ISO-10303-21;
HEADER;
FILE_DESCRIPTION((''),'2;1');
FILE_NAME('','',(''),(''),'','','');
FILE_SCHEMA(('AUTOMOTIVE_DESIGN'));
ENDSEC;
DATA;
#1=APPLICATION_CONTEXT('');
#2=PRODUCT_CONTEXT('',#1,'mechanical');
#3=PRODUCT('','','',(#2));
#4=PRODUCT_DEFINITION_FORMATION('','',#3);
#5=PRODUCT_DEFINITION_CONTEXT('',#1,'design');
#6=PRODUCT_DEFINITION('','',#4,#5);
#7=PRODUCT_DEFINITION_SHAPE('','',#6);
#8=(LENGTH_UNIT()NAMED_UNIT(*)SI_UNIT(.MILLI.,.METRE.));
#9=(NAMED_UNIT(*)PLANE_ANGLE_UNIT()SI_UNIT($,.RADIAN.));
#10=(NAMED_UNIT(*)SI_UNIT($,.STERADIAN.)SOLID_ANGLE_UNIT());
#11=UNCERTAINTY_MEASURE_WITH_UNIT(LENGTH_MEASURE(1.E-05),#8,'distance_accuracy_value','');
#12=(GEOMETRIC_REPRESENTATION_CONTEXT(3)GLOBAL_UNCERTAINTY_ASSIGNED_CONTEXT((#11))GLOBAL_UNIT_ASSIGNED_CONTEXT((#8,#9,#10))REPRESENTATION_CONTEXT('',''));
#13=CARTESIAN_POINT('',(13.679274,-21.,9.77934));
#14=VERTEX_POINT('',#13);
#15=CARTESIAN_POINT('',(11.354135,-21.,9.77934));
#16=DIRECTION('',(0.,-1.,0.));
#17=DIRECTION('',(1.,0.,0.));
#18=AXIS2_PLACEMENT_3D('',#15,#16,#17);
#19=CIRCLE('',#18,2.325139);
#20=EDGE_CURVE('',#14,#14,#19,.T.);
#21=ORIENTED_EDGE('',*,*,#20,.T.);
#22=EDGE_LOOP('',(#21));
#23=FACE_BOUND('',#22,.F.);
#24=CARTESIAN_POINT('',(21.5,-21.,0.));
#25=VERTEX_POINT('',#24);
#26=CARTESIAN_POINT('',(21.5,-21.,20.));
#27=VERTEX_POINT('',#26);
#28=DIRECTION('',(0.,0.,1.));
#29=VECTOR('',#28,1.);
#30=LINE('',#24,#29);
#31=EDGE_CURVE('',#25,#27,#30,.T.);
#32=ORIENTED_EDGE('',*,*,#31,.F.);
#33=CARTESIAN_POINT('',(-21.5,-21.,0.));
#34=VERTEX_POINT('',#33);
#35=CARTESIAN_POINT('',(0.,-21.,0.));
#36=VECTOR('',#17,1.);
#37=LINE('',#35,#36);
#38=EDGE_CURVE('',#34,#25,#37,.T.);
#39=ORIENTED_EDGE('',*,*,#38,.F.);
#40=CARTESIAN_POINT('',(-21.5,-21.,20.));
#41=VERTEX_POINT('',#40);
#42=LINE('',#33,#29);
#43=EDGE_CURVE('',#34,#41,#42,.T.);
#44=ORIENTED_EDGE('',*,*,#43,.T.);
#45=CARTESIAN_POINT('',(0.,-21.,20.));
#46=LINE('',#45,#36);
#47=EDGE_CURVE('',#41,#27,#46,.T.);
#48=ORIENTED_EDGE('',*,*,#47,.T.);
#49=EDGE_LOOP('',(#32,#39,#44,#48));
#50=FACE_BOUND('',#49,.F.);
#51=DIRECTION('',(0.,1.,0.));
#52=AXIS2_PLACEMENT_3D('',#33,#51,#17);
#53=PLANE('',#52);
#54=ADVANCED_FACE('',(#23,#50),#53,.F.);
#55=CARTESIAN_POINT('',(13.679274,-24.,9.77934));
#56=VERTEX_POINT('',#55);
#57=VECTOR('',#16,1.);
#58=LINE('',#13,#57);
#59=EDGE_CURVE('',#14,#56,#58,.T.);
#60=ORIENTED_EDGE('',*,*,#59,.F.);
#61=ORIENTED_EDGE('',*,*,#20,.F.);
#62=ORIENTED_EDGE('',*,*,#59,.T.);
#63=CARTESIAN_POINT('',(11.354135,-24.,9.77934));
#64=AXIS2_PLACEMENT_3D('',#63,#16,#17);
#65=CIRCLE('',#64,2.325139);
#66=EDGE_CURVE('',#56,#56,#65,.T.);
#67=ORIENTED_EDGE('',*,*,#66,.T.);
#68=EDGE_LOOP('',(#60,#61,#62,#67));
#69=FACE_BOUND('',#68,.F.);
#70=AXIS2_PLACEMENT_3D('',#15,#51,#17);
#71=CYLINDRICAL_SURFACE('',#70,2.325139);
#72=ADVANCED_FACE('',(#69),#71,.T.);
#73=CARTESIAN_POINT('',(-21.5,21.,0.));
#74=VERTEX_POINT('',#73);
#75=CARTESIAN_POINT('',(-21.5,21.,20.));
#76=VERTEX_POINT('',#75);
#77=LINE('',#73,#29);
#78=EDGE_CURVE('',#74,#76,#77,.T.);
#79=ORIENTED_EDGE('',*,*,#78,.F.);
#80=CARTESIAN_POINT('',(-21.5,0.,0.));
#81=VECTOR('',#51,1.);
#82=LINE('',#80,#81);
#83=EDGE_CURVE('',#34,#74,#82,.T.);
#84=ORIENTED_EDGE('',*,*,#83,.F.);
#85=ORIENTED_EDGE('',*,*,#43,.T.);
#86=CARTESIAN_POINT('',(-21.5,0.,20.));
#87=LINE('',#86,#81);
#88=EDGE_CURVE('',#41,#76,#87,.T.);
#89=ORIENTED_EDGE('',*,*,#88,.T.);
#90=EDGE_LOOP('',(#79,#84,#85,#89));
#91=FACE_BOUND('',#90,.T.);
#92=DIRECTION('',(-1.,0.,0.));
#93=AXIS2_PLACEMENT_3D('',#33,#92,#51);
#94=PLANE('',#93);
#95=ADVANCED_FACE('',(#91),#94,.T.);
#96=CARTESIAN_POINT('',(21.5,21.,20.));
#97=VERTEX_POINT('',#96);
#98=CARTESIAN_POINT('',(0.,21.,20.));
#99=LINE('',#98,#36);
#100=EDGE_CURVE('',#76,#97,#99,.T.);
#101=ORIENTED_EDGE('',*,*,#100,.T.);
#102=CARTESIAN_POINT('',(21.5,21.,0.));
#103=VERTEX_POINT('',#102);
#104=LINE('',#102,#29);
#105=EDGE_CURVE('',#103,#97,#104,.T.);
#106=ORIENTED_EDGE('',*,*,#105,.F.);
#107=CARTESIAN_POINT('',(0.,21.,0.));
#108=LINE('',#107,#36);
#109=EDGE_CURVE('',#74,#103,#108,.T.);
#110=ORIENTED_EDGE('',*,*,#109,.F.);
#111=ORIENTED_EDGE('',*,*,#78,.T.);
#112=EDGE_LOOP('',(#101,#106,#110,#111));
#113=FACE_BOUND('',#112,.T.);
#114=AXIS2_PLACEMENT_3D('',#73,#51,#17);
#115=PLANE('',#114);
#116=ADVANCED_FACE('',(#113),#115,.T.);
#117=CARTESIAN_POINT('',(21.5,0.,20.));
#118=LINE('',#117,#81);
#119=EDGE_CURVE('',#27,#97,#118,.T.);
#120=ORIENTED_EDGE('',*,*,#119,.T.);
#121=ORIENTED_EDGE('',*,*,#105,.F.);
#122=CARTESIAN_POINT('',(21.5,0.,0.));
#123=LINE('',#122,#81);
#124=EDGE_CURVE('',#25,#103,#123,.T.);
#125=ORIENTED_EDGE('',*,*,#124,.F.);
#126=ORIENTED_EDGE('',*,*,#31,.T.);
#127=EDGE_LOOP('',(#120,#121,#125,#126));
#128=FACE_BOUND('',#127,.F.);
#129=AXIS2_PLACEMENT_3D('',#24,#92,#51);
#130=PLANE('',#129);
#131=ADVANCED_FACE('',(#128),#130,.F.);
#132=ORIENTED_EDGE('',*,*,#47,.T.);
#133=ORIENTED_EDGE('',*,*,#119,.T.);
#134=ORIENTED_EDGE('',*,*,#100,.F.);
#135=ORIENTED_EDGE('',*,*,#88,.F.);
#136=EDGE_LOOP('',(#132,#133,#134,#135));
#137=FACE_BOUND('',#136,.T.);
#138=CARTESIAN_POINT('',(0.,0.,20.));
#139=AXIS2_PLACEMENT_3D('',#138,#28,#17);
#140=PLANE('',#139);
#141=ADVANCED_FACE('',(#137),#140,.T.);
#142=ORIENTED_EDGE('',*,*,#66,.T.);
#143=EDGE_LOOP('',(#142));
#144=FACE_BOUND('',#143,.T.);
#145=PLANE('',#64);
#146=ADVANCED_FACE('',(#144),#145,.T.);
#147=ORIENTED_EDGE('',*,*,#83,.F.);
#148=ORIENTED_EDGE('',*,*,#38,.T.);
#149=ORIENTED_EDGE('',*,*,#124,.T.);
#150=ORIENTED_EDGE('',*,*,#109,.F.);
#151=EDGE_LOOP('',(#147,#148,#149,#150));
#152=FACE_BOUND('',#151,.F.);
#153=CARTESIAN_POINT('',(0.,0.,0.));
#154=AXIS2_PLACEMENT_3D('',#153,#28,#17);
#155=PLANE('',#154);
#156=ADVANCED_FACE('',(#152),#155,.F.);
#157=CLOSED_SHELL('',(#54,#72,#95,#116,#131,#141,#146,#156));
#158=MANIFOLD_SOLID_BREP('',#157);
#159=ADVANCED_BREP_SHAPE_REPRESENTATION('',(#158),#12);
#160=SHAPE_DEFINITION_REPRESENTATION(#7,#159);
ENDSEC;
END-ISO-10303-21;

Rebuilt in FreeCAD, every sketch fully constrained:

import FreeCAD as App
import Part
import Sketcher
Q = App.Units.Quantity

doc = App.newDocument("Part")
body = doc.addObject("PartDesign::Body", "Body")

# Sketch on XY plane
sketch1 = doc.addObject("Sketcher::SketchObject", "Sketch")
body.addObject(sketch1)
sketch1.AttachmentSupport = (doc.XY_Plane, [""])
sketch1.MapMode = "FlatFace"
sketch1.addGeometry([
    Part.LineSegment(App.Vector(-21.5, 21, 0), App.Vector(-21.5, -21, 0)),
    Part.LineSegment(App.Vector(-21.5, -21, 0), App.Vector(21.5, -21, 0)),
    Part.LineSegment(App.Vector(21.5, -21, 0), App.Vector(21.5, 21, 0)),
    Part.LineSegment(App.Vector(21.5, 21, 0), App.Vector(-21.5, 21, 0)),
], False)
sketch1.addConstraint([
    Sketcher.Constraint("Coincident", 0, 2, 1, 1),
    Sketcher.Constraint("Coincident", 1, 2, 2, 1),
    Sketcher.Constraint("Coincident", 2, 2, 3, 1),
    Sketcher.Constraint("Coincident", 3, 2, 0, 1),
    Sketcher.Constraint("Vertical", 0),
    Sketcher.Constraint("Horizontal", 1),
    Sketcher.Constraint("Vertical", 2),
    Sketcher.Constraint("Horizontal", 3),
    Sketcher.Constraint("Symmetric", 0, 2, 2, 2, -1, 1),
    Sketcher.Constraint("DistanceX", 1, 1, 1, 2, Q("43 mm")),
    Sketcher.Constraint("DistanceY", 0, 2, 0, 1, Q("42 mm")),
])
pad1 = doc.addObject("PartDesign::Pad", "Pad")
body.addObject(pad1)
pad1.Profile = sketch1
pad1.Length = 20

# Sketch on XZ plane
sketch2 = doc.addObject("Sketcher::SketchObject", "Sketch001")
body.addObject(sketch2)
sketch2.AttachmentSupport = (doc.XZ_Plane, [""])
sketch2.MapMode = "FlatFace"
sketch2.AttachmentOffset = App.Placement(App.Vector(0, 0, 21), App.Rotation())
sketch2.addGeometry(Part.Circle(App.Vector(11.354135, 9.77934, 0), App.Vector(0, 0, 1), 2.325139), False)
sketch2.addConstraint([
    Sketcher.Constraint("Diameter", 0, Q("4.650278 mm")),
    Sketcher.Constraint("DistanceY", -1, 1, 0, 3, Q("9.77934 mm")),
    Sketcher.Constraint("DistanceX", -1, 1, 0, 3, Q("11.354135 mm")),
])
pad2 = doc.addObject("PartDesign::Pad", "Pad001")
body.addObject(pad2)
pad2.Profile = sketch2
pad2.Length = 3

doc.recompute()
